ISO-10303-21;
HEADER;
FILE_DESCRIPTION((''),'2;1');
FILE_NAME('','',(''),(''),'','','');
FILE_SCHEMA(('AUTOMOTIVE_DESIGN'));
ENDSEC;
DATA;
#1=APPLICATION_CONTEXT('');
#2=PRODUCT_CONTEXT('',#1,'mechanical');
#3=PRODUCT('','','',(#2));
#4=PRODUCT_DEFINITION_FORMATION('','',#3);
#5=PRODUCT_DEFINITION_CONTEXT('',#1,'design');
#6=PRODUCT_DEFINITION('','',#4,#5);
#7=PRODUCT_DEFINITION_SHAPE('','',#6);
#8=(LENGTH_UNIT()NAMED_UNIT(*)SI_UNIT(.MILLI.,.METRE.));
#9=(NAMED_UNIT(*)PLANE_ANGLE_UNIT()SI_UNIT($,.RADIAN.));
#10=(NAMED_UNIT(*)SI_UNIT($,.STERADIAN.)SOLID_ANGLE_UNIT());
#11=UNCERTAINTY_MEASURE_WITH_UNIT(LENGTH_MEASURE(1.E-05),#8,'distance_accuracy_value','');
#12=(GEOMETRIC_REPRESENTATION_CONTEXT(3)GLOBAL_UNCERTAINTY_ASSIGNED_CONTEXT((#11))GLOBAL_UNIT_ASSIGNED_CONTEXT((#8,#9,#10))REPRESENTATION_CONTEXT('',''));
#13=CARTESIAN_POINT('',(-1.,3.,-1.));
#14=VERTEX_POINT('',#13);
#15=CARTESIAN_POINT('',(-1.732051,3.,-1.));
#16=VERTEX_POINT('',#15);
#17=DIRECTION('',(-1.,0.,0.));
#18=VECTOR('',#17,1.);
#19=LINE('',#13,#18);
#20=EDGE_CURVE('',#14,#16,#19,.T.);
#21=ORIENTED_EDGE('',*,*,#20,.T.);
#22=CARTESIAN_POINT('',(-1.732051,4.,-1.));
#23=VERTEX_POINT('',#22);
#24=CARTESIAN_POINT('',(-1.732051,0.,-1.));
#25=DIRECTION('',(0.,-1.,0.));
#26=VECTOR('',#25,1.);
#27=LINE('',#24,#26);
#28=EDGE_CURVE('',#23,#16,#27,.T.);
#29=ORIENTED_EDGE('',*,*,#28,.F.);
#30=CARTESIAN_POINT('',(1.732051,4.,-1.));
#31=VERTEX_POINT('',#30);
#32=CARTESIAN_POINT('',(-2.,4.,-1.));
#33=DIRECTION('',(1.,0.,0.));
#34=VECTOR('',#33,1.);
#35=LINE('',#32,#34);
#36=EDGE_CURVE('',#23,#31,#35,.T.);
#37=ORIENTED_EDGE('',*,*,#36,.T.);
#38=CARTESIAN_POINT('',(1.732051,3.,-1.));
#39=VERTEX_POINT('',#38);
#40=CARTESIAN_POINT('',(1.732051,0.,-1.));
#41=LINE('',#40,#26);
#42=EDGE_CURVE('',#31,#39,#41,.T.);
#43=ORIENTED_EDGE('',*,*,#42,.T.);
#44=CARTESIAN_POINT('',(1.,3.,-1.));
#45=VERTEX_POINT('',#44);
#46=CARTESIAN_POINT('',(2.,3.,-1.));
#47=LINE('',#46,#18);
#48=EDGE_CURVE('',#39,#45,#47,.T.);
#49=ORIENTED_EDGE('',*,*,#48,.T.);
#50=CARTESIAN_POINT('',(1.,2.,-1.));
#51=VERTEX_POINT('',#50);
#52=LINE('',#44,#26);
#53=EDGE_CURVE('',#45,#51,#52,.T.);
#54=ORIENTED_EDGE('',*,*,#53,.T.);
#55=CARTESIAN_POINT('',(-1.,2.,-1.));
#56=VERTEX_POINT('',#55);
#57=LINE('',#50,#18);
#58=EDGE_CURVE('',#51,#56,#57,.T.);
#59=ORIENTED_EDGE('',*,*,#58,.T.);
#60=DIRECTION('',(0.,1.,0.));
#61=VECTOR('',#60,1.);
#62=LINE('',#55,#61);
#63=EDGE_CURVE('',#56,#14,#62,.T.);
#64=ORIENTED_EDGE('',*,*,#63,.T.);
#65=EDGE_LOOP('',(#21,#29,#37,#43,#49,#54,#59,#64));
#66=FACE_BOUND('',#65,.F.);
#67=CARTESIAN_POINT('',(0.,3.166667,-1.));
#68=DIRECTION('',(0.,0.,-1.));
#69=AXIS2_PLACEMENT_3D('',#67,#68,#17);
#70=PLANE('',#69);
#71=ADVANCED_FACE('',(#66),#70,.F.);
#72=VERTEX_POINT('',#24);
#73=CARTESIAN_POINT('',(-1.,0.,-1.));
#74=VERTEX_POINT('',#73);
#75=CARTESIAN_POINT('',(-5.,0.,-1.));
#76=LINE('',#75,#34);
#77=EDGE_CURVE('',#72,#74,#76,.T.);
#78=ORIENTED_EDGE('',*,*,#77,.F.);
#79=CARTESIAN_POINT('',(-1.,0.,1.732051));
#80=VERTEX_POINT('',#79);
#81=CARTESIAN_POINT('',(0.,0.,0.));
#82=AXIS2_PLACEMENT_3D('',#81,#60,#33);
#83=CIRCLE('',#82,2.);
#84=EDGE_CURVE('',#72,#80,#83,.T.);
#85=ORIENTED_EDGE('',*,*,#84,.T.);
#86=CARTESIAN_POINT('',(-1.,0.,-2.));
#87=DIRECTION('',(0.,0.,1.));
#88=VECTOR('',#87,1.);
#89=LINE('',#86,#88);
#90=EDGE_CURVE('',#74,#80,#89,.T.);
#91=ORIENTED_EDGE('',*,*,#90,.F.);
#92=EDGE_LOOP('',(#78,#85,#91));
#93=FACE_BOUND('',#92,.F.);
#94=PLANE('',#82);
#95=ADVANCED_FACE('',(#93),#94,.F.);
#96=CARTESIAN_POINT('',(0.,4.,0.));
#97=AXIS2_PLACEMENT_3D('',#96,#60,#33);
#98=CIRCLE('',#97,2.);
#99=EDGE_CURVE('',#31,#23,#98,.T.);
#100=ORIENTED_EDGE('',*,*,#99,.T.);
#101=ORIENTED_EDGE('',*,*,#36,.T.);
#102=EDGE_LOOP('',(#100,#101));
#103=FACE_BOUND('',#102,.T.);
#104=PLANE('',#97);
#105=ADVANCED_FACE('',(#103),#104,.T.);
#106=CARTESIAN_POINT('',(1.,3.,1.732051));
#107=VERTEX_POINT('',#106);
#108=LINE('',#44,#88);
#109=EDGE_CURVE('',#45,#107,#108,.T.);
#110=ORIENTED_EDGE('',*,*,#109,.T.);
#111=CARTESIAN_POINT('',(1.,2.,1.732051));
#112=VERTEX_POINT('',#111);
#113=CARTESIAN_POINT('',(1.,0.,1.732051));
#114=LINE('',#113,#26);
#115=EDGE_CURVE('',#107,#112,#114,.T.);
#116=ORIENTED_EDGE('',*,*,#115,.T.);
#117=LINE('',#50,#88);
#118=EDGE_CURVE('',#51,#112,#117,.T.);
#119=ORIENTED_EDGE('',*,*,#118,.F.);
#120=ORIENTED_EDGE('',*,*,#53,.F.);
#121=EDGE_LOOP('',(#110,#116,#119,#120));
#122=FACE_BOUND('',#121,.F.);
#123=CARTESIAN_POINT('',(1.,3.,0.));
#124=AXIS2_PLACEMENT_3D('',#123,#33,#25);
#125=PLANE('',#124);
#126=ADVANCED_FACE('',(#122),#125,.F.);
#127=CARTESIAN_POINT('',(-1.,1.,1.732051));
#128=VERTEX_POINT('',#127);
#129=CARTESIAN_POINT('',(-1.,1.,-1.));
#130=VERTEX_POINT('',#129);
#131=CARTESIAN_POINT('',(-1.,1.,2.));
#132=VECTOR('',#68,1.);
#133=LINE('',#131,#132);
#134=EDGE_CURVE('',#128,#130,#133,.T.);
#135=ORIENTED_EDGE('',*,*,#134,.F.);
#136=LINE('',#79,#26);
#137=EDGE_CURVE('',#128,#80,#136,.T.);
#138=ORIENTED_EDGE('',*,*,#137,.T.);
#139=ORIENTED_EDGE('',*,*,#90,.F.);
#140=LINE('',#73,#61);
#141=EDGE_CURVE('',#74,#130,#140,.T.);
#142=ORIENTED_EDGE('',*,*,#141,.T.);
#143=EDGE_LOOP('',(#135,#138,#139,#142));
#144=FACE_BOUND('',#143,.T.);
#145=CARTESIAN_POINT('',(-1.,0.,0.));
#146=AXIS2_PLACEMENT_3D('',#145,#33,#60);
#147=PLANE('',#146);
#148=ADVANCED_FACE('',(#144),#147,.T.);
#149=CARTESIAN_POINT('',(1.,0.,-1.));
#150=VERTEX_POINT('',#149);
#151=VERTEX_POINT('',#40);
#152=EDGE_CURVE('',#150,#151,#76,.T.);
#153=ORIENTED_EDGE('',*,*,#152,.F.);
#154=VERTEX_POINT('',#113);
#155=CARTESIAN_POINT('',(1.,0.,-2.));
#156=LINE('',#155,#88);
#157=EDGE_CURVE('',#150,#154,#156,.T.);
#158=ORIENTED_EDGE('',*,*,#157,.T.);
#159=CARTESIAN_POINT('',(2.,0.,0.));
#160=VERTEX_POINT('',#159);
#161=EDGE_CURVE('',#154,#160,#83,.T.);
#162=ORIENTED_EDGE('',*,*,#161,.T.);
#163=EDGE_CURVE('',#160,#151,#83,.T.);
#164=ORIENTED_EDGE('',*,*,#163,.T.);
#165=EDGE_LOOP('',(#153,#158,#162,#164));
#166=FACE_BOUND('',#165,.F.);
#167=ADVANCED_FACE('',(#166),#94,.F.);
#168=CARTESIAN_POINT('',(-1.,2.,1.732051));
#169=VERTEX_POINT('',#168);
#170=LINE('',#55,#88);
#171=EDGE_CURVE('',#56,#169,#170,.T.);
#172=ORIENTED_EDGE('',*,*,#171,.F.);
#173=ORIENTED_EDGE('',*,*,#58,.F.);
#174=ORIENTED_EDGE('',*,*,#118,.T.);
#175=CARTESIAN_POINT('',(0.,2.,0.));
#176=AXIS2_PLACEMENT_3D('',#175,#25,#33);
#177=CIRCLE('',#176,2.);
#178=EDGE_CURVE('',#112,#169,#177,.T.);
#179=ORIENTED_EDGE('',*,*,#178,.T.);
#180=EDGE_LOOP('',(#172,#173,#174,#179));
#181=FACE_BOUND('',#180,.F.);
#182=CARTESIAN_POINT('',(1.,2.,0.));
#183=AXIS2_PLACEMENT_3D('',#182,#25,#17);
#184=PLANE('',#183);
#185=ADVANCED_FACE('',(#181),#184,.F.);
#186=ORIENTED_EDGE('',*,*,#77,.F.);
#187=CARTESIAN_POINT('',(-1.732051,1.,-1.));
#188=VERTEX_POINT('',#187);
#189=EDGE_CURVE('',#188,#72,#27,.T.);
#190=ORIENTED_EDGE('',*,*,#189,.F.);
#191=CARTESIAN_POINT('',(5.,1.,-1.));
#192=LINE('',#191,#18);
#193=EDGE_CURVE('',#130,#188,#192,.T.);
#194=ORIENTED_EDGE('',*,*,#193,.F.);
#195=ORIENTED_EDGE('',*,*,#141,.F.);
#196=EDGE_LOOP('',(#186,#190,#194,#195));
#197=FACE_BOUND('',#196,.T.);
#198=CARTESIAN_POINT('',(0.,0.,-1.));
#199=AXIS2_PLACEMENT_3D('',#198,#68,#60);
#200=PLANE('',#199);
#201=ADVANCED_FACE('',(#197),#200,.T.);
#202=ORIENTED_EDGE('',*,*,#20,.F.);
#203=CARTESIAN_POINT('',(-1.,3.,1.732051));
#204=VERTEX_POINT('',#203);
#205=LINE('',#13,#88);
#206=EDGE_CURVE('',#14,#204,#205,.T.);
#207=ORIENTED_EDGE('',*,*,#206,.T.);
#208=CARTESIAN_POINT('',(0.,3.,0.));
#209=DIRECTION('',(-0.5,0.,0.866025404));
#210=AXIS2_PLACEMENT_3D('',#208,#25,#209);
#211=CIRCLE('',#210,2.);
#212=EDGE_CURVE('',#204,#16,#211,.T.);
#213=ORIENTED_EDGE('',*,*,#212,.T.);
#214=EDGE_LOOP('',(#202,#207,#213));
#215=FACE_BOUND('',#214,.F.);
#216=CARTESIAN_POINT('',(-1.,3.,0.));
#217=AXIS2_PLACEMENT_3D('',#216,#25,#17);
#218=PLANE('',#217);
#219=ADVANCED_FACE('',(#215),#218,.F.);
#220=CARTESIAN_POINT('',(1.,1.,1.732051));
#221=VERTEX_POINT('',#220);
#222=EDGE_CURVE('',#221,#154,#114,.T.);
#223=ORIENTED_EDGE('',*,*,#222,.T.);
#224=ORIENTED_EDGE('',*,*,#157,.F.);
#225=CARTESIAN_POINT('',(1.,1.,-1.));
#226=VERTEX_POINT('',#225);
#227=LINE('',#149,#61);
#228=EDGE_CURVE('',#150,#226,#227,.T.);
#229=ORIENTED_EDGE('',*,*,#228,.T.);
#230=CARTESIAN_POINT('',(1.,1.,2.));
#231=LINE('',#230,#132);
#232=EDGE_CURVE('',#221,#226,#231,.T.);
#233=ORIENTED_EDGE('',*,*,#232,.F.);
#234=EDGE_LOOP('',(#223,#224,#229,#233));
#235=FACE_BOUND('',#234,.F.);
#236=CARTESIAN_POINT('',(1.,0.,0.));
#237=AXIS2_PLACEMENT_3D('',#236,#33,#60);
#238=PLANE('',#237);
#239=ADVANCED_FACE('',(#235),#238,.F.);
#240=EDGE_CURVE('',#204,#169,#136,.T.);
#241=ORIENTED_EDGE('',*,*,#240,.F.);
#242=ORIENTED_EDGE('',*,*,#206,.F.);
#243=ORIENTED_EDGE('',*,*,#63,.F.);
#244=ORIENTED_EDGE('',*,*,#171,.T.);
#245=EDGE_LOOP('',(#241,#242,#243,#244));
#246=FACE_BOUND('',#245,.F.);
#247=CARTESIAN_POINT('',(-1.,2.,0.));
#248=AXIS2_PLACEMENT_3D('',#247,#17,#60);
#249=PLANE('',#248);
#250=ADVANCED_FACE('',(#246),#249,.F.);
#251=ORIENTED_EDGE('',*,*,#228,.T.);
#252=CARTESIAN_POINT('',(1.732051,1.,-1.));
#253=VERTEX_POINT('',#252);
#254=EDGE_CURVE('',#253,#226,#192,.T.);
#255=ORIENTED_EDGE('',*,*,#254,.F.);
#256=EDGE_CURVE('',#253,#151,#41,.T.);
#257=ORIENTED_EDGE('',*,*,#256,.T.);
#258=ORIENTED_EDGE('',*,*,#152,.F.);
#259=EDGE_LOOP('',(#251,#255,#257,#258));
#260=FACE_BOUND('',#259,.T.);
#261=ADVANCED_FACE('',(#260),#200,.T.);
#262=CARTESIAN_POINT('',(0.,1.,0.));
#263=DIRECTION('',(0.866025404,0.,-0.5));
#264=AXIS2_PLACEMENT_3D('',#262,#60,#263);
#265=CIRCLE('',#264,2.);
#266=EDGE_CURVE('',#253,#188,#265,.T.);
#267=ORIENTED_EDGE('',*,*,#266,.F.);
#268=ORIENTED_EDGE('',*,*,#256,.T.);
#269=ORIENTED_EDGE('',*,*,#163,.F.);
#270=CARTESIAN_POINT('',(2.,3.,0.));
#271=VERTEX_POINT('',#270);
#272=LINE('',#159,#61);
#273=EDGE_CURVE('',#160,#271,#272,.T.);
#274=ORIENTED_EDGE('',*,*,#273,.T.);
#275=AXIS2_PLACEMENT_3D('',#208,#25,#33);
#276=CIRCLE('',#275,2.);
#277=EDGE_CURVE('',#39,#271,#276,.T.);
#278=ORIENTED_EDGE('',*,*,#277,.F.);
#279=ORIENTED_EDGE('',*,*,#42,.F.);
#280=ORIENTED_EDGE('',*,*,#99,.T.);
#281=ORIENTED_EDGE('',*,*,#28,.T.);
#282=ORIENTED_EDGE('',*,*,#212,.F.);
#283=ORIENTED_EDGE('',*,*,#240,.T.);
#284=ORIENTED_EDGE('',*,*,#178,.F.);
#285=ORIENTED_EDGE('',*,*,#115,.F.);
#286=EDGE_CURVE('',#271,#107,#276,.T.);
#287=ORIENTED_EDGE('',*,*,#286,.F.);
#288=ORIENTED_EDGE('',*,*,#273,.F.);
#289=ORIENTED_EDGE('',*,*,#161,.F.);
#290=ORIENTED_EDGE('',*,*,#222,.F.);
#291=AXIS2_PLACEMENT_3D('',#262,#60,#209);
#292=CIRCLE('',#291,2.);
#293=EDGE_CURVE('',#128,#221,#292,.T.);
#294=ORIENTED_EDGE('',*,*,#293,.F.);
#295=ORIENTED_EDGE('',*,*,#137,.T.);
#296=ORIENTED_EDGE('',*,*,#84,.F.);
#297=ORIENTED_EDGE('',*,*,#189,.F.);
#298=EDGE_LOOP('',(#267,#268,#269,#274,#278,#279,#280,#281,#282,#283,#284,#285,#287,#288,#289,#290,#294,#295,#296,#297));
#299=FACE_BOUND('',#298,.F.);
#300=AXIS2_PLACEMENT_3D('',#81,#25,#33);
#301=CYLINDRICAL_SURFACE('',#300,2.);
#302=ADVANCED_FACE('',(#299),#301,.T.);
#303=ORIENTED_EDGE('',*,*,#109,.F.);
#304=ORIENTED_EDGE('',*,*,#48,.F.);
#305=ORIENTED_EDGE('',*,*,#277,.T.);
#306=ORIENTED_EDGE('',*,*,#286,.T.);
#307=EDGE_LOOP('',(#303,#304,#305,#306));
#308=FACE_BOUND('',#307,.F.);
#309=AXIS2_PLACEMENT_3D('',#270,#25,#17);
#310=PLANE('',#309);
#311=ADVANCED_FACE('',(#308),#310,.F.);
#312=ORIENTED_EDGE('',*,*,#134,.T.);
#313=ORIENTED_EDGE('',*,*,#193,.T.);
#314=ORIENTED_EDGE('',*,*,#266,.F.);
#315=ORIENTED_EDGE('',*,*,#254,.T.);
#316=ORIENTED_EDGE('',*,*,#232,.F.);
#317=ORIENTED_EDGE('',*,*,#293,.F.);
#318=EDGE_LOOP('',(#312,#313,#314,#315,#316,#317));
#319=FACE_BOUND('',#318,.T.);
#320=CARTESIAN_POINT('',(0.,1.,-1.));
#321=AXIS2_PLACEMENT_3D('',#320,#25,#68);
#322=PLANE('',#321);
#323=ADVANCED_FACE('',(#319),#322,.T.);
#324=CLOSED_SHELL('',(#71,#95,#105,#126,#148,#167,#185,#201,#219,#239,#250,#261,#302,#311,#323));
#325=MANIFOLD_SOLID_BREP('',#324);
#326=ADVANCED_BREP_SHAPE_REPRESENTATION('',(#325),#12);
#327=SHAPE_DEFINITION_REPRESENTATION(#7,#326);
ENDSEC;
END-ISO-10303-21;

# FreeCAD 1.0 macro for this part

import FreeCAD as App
import Part
import Sketcher
Q = App.Units.Quantity

doc = App.newDocument("Part")
body = doc.addObject("PartDesign::Body", "Body")

sketch1 = body.newObject("Sketcher::SketchObject", "Sketch")
sketch1.AttachmentSupport = (doc.getObject("XZ_Plane"), [""])
sketch1.MapMode = "FlatFace"
sketch1.addGeometry(Part.Circle(App.Vector(0, 0, 0), App.Vector(0, 0, 1), 2), False)
sketch1.addConstraint(Sketcher.Constraint("Coincident", 0, 3, -1, 1))
sketch1.addConstraint(Sketcher.Constraint("Diameter", 0, Q("4 mm")))
pad1 = body.newObject("PartDesign::Pad", "Pad")
pad1.Profile = sketch1
pad1.Length = 4
pad1.Reversed = True

sketch2 = body.newObject("Sketcher::SketchObject", "Sketch001")
sketch2.AttachmentSupport = (doc.getObject("XY_Plane"), [""])
sketch2.MapMode = "FlatFace"
sketch2.addGeometry(Part.LineSegment(App.Vector(-1, 1, 0), App.Vector(-1, 0, 0)), False)
sketch2.addGeometry(Part.LineSegment(App.Vector(-1, 0, 0), App.Vector(1, 0, 0)), False)
sketch2.addGeometry(Part.LineSegment(App.Vector(1, 0, 0), App.Vector(1, 1, 0)), False)
sketch2.addGeometry(Part.LineSegment(App.Vector(1, 1, 0), App.Vector(-1, 1, 0)), False)
sketch2.addConstraint(Sketcher.Constraint("Coincident", 0, 2, 1, 1))
sketch2.addConstraint(Sketcher.Constraint("Coincident", 1, 2, 2, 1))
sketch2.addConstraint(Sketcher.Constraint("Coincident", 2, 2, 3, 1))
sketch2.addConstraint(Sketcher.Constraint("Coincident", 3, 2, 0, 1))
sketch2.addConstraint(Sketcher.Constraint("Vertical", 0))
sketch2.addConstraint(Sketcher.Constraint("Horizontal", 1))
sketch2.addConstraint(Sketcher.Constraint("Vertical", 2))
sketch2.addConstraint(Sketcher.Constraint("Horizontal", 3))
sketch2.addConstraint(Sketcher.Constraint("Symmetric", 0, 2, 1, 2, -1, 1))
sketch2.addConstraint(Sketcher.Constraint("DistanceX", 1, 1, 1, 2, Q("2 mm")))
sketch2.addConstraint(Sketcher.Constraint("DistanceY", 0, 2, 0, 1, Q("1 mm")))
pocket1 = body.newObject("PartDesign::Pocket", "Pocket")
pocket1.Profile = sketch2
pocket1.Length = 4
pocket1.Midplane = True

sketch3 = body.newObject("Sketcher::SketchObject", "Sketch002")
sketch3.AttachmentSupport = (doc.getObject("XY_Plane"), [""])
sketch3.MapMode = "FlatFace"
sketch3.addGeometry(Part.LineSegment(App.Vector(2, 4, 0), App.Vector(-2, 4, 0)), False)
sketch3.addGeometry(Part.LineSegment(App.Vector(-2, 4, 0), App.Vector(-2, 3, 0)), False)
sketch3.addGeometry(Part.LineSegment(App.Vector(-2, 3, 0), App.Vector(-1, 3, 0)), False)
sketch3.addGeometry(Part.LineSegment(App.Vector(-1, 3, 0), App.Vector(-1, 2, 0)), False)
sketch3.addGeometry(Part.LineSegment(App.Vector(-1, 2, 0), App.Vector(1, 2, 0)), False)
sketch3.addGeometry(Part.LineSegment(App.Vector(1, 2, 0), App.Vector(1, 3, 0)), False)
sketch3.addGeometry(Part.LineSegment(App.Vector(1, 3, 0), App.Vector(2, 3, 0)), False)
sketch3.addGeometry(Part.LineSegment(App.Vector(2, 3, 0), App.Vector(2, 4, 0)), False)
sketch3.addConstraint(Sketcher.Constraint("Coincident", 0, 2, 1, 1))
sketch3.addConstraint(Sketcher.Constraint("Coincident", 1, 2, 2, 1))
sketch3.addConstraint(Sketcher.Constraint("Coincident", 2, 2, 3, 1))
sketch3.addConstraint(Sketcher.Constraint("Coincident", 3, 2, 4, 1))
sketch3.addConstraint(Sketcher.Constraint("Coincident", 4, 2, 5, 1))
sketch3.addConstraint(Sketcher.Constraint("Coincident", 5, 2, 6, 1))
sketch3.addConstraint(Sketcher.Constraint("Coincident", 6, 2, 7, 1))
sketch3.addConstraint(Sketcher.Constraint("Coincident", 7, 2, 0, 1))
sketch3.addConstraint(Sketcher.Constraint("Horizontal", 0))
sketch3.addConstraint(Sketcher.Constraint("Vertical", 1))
sketch3.addConstraint(Sketcher.Constraint("Horizontal", 2))
sketch3.addConstraint(Sketcher.Constraint("Vertical", 3))
sketch3.addConstraint(Sketcher.Constraint("Horizontal", 4))
sketch3.addConstraint(Sketcher.Constraint("Vertical", 5))
sketch3.addConstraint(Sketcher.Constraint("Horizontal", 6))
sketch3.addConstraint(Sketcher.Constraint("Vertical", 7))
sketch3.addConstraint(Sketcher.Constraint("Symmetric", 2, 2, 5, 2, -2))
sketch3.addConstraint(Sketcher.Constraint("Equal", 2, 6))
sketch3.addConstraint(Sketcher.Constraint("Equal", 6, 1))
sketch3.addConstraint(Sketcher.Constraint("Equal", 1, 3))
sketch3.addConstraint(Sketcher.Constraint("DistanceX", 0, 2, 0, 1, Q("4 mm")))
sketch3.addConstraint(Sketcher.Constraint("DistanceX", 2, 1, 2, 2, Q("1 mm")))
sketch3.addConstraint(Sketcher.Constraint("DistanceY", -1, 1, 0, 2, Q("4 mm")))
pocket2 = body.newObject("PartDesign::Pocket", "Pocket001")
pocket2.Profile = sketch3
pocket2.Type = "TwoLengths"
pocket2.Length = 4
pocket2.Length2 = 1
pocket2.Reversed = True

sketch4 = body.newObject("Sketcher::SketchObject", "Sketch003")
sketch4.AttachmentSupport = (doc.getObject("YZ_Plane"), [""])
sketch4.MapMode = "FlatFace"
sketch4.addGeometry(Part.LineSegment(App.Vector(1, -1, 0), App.Vector(0, -1, 0)), False)
sketch4.addGeometry(Part.LineSegment(App.Vector(0, -1, 0), App.Vector(0, -1.7, 0)), False)
sketch4.addGeometry(Part.LineSegment(App.Vector(0, -1.7, 0), App.Vector(1, -1.7, 0)), False)
sketch4.addGeometry(Part.LineSegment(App.Vector(1, -1.7, 0), App.Vector(1, -1, 0)), False)
sketch4.addConstraint(Sketcher.Constraint("Coincident", 0, 2, 1, 1))
sketch4.addConstraint(Sketcher.Constraint("Coincident", 1, 2, 2, 1))
sketch4.addConstraint(Sketcher.Constraint("Coincident", 2, 2, 3, 1))
sketch4.addConstraint(Sketcher.Constraint("Coincident", 3, 2, 0, 1))
sketch4.addConstraint(Sketcher.Constraint("Horizontal", 0))
sketch4.addConstraint(Sketcher.Constraint("Vertical", 1))
sketch4.addConstraint(Sketcher.Constraint("Horizontal", 2))
sketch4.addConstraint(Sketcher.Constraint("Vertical", 3))
sketch4.addConstraint(Sketcher.Constraint("PointOnObject", 0, 2, -2))
sketch4.addConstraint(Sketcher.Constraint("DistanceX", 0, 2, 0, 1, Q("1 mm")))
sketch4.addConstraint(Sketcher.Constraint("DistanceY", 0, 2, -1, 1, Q("1 mm")))
sketch4.addConstraint(Sketcher.Constraint("DistanceY", 1, 2, 1, 1, Q("0.732051 mm")))
pocket3 = body.newObject("PartDesign::Pocket", "Pocket002")
pocket3.Profile = sketch4
pocket3.Length = 10
pocket3.Midplane = True

doc.recompute()
